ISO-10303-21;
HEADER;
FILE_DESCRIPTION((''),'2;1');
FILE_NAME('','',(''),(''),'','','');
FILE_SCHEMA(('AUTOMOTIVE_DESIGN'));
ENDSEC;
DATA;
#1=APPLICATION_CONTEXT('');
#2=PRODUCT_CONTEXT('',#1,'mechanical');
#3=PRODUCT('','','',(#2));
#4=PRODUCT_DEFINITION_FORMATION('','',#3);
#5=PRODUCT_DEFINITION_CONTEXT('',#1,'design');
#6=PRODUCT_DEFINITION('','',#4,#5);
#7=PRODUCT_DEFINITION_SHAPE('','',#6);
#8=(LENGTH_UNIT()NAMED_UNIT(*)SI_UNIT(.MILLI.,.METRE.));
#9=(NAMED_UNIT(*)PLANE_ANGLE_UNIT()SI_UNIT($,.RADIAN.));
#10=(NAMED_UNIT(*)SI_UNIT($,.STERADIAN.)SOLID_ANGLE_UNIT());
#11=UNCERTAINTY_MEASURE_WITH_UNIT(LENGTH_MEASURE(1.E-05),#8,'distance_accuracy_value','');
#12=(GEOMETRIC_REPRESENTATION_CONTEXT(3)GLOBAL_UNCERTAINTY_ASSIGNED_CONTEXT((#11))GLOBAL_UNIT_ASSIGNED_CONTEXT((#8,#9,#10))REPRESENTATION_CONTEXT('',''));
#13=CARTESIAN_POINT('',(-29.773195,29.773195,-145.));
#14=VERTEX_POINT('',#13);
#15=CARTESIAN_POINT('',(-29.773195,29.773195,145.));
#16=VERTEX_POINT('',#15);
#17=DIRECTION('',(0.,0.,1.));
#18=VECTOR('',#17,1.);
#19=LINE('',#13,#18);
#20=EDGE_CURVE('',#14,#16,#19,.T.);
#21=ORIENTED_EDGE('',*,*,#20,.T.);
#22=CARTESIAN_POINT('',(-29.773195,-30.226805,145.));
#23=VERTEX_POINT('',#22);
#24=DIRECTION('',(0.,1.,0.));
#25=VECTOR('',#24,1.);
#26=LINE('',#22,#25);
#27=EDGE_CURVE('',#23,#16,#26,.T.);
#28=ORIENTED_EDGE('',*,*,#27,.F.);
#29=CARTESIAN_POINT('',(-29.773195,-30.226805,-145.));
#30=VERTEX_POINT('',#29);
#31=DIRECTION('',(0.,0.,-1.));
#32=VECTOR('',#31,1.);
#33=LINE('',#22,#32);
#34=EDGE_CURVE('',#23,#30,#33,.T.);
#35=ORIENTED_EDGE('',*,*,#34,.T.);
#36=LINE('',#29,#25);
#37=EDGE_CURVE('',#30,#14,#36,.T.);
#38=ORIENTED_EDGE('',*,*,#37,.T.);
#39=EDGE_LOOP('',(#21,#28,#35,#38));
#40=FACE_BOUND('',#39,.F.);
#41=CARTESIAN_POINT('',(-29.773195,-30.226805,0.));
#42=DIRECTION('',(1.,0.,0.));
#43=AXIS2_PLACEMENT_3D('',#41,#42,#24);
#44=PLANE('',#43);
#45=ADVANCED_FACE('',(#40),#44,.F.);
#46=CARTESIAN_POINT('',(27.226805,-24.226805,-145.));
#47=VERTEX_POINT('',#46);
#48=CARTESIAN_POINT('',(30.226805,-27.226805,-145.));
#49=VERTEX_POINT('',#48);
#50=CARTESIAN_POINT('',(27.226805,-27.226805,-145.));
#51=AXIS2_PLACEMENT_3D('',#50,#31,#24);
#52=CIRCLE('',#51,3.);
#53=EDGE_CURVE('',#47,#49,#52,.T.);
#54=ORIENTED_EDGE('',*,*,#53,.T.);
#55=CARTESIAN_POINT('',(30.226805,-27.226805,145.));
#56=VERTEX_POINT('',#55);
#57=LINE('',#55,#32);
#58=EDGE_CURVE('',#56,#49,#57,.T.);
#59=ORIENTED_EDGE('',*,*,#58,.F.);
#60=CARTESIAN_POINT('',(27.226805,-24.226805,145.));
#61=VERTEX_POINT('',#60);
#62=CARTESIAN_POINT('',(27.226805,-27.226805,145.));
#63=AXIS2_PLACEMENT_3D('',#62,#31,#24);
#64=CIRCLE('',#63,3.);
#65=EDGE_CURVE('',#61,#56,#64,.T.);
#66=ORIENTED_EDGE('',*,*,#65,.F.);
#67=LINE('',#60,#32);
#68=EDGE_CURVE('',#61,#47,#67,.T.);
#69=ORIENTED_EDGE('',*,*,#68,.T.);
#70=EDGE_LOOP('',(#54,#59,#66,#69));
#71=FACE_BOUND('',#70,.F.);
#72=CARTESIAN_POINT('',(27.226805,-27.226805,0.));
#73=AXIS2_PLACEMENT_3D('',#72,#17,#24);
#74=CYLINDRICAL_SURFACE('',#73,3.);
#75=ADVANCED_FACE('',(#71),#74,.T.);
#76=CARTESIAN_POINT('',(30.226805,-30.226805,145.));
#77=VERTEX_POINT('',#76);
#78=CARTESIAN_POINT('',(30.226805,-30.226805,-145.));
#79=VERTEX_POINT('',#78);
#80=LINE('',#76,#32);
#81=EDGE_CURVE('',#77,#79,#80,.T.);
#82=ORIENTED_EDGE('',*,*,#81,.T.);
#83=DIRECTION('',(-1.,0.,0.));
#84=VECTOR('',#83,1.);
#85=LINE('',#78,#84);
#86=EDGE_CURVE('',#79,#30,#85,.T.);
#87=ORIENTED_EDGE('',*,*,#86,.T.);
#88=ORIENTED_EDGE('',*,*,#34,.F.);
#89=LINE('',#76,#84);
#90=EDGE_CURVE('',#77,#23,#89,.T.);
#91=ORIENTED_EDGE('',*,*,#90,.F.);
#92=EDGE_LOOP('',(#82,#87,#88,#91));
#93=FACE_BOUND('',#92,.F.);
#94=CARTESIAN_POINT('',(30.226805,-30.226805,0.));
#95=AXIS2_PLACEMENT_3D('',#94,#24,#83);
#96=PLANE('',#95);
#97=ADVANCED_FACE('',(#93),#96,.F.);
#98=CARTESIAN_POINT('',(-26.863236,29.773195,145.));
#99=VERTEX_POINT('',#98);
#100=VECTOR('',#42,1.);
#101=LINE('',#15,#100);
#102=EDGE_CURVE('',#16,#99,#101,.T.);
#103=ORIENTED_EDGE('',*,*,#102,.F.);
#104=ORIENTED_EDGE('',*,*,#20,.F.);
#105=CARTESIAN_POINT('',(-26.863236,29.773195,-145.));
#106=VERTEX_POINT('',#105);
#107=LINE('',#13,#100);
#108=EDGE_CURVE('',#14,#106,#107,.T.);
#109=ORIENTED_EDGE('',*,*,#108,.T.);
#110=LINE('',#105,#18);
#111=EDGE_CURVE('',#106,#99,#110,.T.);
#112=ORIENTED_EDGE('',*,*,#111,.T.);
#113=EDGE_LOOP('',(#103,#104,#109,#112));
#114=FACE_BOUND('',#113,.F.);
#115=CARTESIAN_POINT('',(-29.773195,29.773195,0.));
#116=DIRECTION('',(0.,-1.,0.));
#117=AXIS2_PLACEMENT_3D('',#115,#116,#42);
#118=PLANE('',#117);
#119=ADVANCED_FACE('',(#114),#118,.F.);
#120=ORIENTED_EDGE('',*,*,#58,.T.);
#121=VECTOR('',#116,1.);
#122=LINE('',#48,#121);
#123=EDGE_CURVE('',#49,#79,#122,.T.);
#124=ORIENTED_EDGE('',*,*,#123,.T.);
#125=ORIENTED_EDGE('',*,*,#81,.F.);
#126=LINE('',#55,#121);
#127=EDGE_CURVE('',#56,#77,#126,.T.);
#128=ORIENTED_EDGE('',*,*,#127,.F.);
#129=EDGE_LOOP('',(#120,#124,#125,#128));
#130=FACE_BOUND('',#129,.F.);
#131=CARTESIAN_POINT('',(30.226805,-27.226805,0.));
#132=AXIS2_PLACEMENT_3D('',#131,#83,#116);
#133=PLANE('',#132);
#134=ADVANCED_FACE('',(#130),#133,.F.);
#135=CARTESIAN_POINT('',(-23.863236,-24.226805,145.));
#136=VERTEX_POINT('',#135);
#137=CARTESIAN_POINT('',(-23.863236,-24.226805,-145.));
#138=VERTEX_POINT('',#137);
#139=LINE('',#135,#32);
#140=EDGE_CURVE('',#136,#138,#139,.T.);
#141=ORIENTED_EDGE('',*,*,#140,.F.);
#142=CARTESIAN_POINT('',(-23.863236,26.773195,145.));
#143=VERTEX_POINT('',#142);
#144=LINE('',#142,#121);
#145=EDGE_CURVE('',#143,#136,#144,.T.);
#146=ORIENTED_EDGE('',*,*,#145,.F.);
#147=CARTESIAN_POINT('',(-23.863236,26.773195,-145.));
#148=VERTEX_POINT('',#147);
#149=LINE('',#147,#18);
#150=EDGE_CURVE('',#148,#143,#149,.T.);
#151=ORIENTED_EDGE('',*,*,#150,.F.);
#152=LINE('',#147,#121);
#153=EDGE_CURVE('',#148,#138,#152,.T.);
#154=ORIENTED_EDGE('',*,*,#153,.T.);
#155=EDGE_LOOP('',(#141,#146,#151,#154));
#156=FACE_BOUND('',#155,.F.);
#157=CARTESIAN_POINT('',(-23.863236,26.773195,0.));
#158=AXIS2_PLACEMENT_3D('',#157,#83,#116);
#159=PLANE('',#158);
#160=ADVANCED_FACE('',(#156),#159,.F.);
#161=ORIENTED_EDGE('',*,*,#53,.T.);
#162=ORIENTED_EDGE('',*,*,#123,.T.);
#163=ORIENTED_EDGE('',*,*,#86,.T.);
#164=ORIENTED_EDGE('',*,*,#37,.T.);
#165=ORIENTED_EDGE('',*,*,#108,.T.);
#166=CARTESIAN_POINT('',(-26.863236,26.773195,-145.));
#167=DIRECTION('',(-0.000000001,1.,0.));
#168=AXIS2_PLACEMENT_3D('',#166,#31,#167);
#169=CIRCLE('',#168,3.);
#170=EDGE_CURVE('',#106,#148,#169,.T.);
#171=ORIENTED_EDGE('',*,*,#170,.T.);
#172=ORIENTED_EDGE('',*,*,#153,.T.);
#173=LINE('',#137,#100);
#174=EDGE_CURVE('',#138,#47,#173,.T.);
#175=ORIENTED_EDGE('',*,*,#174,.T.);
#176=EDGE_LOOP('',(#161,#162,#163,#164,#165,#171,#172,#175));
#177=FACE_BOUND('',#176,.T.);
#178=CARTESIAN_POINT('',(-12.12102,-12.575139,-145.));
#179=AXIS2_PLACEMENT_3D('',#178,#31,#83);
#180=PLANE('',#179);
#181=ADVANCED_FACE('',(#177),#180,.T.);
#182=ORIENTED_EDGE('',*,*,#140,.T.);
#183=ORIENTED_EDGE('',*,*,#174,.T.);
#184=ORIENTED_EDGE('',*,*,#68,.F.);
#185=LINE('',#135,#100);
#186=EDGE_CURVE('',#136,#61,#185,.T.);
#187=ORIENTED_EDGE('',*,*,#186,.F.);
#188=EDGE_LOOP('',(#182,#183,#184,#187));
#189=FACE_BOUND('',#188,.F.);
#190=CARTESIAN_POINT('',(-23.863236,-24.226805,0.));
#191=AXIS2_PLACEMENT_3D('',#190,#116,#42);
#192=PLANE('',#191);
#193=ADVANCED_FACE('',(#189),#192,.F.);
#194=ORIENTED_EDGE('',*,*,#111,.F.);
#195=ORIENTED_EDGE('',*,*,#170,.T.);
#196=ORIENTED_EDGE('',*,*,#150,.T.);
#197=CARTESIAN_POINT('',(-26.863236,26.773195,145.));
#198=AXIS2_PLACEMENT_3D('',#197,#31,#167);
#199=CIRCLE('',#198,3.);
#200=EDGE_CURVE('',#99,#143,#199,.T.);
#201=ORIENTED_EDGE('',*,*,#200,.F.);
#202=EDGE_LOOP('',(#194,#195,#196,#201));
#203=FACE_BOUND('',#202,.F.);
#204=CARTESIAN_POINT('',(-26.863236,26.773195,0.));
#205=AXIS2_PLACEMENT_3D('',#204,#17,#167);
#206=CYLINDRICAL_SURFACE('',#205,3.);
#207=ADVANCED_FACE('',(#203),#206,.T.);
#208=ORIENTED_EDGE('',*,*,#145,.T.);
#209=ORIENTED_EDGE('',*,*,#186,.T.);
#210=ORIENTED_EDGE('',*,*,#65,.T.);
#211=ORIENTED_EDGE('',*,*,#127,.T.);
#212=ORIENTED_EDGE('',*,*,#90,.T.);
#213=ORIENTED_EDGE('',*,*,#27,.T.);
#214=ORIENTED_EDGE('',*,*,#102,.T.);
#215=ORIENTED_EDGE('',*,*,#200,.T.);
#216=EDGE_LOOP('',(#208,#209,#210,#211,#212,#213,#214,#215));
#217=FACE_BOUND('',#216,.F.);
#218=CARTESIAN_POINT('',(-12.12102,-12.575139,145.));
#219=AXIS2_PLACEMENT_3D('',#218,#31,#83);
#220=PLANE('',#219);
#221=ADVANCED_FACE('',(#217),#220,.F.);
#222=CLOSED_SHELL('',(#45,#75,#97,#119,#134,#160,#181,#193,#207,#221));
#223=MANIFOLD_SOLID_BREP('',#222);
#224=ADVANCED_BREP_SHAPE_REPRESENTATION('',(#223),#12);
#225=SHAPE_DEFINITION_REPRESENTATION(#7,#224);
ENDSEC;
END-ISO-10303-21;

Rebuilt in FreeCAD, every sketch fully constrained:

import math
import FreeCAD as App
import Part
import Sketcher

V = App.Vector

doc = App.newDocument("Part")
params = doc.addObject("Spreadsheet::Sheet", "Params")
for row, (alias, value) in enumerate([
    ("sketch1_radius", "3 mm"),
    ("sketch1_width", "60 mm"),
    ("sketch1_height", "51 mm"),
    ("pad1_length", "290 mm"),
], start=1):
    params.set(f"A{row}", alias)
    params.set(f"B{row}", "=" + value)
    params.setAlias(f"B{row}", alias)

body = doc.addObject("PartDesign::Body", "Body")

sketch1 = doc.addObject("Sketcher::SketchObject", "Sketch")
body.addObject(sketch1)
sketch1.AttachmentSupport = (doc.XY_Plane, [""])
sketch1.MapMode = "FlatFace"
sketch1.addGeometry([
    Part.LineSegment(V(-23.9, -24.2, 0), V(-23.9, 26.8, 0)),
    Part.ArcOfCircle(Part.Circle(V(-26.9, 26.8, 0), V(0, 0, 1), 3), math.radians(0), math.radians(90)),
    Part.LineSegment(V(-26.9, 29.8, 0), V(-29.8, 29.8, 0)),
    Part.LineSegment(V(-29.8, 29.8, 0), V(-29.8, -30.2, 0)),
    Part.LineSegment(V(-29.8, -30.2, 0), V(30.2, -30.2, 0)),
    Part.LineSegment(V(30.2, -30.2, 0), V(30.2, -27.2, 0)),
    Part.ArcOfCircle(Part.Circle(V(27.2, -27.2, 0), V(0, 0, 1), 3), math.radians(0), math.radians(90)),
    Part.LineSegment(V(27.2, -24.2, 0), V(-23.9, -24.2, 0)),
], False)
sketch1.addConstraint([
    Sketcher.Constraint("Tangent", 0, 2, 1, 1),
    Sketcher.Constraint("Tangent", 1, 2, 2, 1),
    Sketcher.Constraint("Coincident", 2, 2, 3, 1),
    Sketcher.Constraint("Coincident", 3, 2, 4, 1),
    Sketcher.Constraint("Coincident", 4, 2, 5, 1),
    Sketcher.Constraint("Tangent", 5, 2, 6, 1),
    Sketcher.Constraint("Tangent", 6, 2, 7, 1),
    Sketcher.Constraint("Coincident", 7, 2, 0, 1),
    Sketcher.Constraint("Vertical", 0),
    Sketcher.Constraint("Horizontal", 2),
    Sketcher.Constraint("Vertical", 3),
    Sketcher.Constraint("Horizontal", 4),
    Sketcher.Constraint("Vertical", 5),
    Sketcher.Constraint("Horizontal", 7),
    Sketcher.Constraint("Equal", 1, 6),
    Sketcher.Constraint("Equal", 4, 3),
    Sketcher.Constraint("Radius", 1, 3.0),
    Sketcher.Constraint("DistanceX", 4, 1, 4, 2, 60.0),
    Sketcher.Constraint("DistanceY", 0, 1, 0, 2, 51.0),
    Sketcher.Constraint("DistanceX", 2, 2, 2, 1, 2.909959),
    Sketcher.Constraint("DistanceX", 1, 3, -1, 1, 26.863236),
    Sketcher.Constraint("DistanceY", -1, 1, 1, 3, 26.773195),
])
sketch1.setExpression("Constraints[16]", "Params.sketch1_radius")
sketch1.setExpression("Constraints[17]", "Params.sketch1_width")
sketch1.setExpression("Constraints[18]", "Params.sketch1_height")
pad1 = doc.addObject("PartDesign::Pad", "Pad")
body.addObject(pad1)
pad1.Profile = sketch1
pad1.setExpression("Length", "Params.pad1_length")
pad1.Midplane = True

doc.recompute()
